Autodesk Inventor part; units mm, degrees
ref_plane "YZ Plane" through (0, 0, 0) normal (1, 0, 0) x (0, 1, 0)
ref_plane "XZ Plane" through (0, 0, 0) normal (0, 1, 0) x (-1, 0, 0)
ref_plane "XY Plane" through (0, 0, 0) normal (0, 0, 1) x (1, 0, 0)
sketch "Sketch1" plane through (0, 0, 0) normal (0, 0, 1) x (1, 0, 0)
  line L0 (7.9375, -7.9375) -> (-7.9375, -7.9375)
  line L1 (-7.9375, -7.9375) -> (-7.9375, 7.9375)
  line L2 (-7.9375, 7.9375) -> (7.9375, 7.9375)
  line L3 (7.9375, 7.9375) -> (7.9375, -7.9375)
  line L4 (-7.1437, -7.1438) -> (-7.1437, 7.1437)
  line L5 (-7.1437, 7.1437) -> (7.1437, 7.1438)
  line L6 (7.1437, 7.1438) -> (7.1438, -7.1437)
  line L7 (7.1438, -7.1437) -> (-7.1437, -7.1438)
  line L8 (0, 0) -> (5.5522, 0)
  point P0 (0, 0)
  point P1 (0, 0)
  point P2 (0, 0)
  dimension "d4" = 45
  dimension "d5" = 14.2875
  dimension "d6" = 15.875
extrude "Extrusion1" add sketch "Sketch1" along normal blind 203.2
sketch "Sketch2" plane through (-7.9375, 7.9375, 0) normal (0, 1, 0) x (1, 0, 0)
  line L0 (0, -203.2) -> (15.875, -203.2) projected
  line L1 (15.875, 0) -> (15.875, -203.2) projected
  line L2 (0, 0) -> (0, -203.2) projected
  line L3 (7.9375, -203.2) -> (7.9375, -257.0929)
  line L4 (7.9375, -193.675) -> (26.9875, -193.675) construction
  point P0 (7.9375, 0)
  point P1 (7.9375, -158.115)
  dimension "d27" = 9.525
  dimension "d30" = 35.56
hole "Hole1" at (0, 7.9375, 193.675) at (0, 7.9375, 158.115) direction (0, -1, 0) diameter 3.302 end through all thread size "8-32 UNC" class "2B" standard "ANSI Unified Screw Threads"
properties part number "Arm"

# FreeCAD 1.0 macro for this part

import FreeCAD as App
import Part
import Sketcher
Q = App.Units.Quantity

doc = App.newDocument("Part")
body = doc.addObject("PartDesign::Body", "Body")

sketch1 = body.newObject("Sketcher::SketchObject", "Sketch")
sketch1.AttachmentSupport = (doc.getObject("XY_Plane"), [""])
sketch1.MapMode = "FlatFace"
sketch1.addGeometry(Part.LineSegment(App.Vector(-7.9375, -7.9375, 0), App.Vector(7.9375, -7.9375, 0)), False)
sketch1.addGeometry(Part.LineSegment(App.Vector(7.9375, -7.9375, 0), App.Vector(7.9375, 7.9375, 0)), False)
sketch1.addGeometry(Part.LineSegment(App.Vector(7.9375, 7.9375, 0), App.Vector(-7.9375, 7.9375, 0)), False)
sketch1.addGeometry(Part.LineSegment(App.Vector(-7.9375, 7.9375, 0), App.Vector(-7.9375, -7.9375, 0)), False)
sketch1.addGeometry(Part.LineSegment(App.Vector(7.1438, -7.1437, 0), App.Vector(-7.1437, -7.1438, 0)), False)
sketch1.addGeometry(Part.LineSegment(App.Vector(-7.1437, -7.1438, 0), App.Vector(-7.1437, 7.1437, 0)), False)
sketch1.addGeometry(Part.LineSegment(App.Vector(-7.1437, 7.1437, 0), App.Vector(7.1437, 7.1438, 0)), False)
sketch1.addGeometry(Part.LineSegment(App.Vector(7.1437, 7.1438, 0), App.Vector(7.1438, -7.1437, 0)), False)
sketch1.addConstraint(Sketcher.Constraint("Coincident", 0, 2, 1, 1))
sketch1.addConstraint(Sketcher.Constraint("Coincident", 1, 2, 2, 1))
sketch1.addConstraint(Sketcher.Constraint("Coincident", 2, 2, 3, 1))
sketch1.addConstraint(Sketcher.Constraint("Coincident", 3, 2, 0, 1))
sketch1.addConstraint(Sketcher.Constraint("Coincident", 4, 2, 5, 1))
sketch1.addConstraint(Sketcher.Constraint("Coincident", 5, 2, 6, 1))
sketch1.addConstraint(Sketcher.Constraint("Coincident", 6, 2, 7, 1))
sketch1.addConstraint(Sketcher.Constraint("Coincident", 7, 2, 4, 1))
sketch1.addConstraint(Sketcher.Constraint("Horizontal", 0))
sketch1.addConstraint(Sketcher.Constraint("Vertical", 1))
sketch1.addConstraint(Sketcher.Constraint("Horizontal", 2))
sketch1.addConstraint(Sketcher.Constraint("Vertical", 3))
sketch1.addConstraint(Sketcher.Constraint("Horizontal", 4))
sketch1.addConstraint(Sketcher.Constraint("Vertical", 5))
sketch1.addConstraint(Sketcher.Constraint("Horizontal", 6))
sketch1.addConstraint(Sketcher.Constraint("Vertical", 7))
sketch1.addConstraint(Sketcher.Constraint("Symmetric", 0, 2, 2, 2, -1, 1))
sketch1.addConstraint(Sketcher.Constraint("Symmetric", 4, 2, 6, 2, -1, 1))
sketch1.addConstraint(Sketcher.Constraint("Equal", 2, 1))
sketch1.addConstraint(Sketcher.Constraint("Equal", 6, 5))
sketch1.addConstraint(Sketcher.Constraint("DistanceX", 0, 1, 0, 2, Q("0.625 in")))
sketch1.addConstraint(Sketcher.Constraint("DistanceX", 4, 2, 4, 1, Q("0.5625 in")))
pad1 = body.newObject("PartDesign::Pad", "Pad")
pad1.Profile = sketch1
pad1.Length = Q("8 in")

sketch2 = body.newObject("Sketcher::SketchObject", "Sketch001")
sketch2.AttachmentSupport = (doc.getObject("XZ_Plane"), [""])
sketch2.MapMode = "FlatFace"
sketch2.AttachmentOffset = App.Placement(App.Vector(0, 0, -0.3125 * 25.4), App.Rotation())
sketch2.addGeometry(Part.Circle(App.Vector(0, 193.675, 0), App.Vector(0, 0, 1), 1.651), False)
sketch2.addGeometry(Part.Circle(App.Vector(0, 158.115, 0), App.Vector(0, 0, 1), 1.651), False)
sketch2.addConstraint(Sketcher.Constraint("Equal", 0, 1))
sketch2.addConstraint(Sketcher.Constraint("PointOnObject", 0, 3, -2))
sketch2.addConstraint(Sketcher.Constraint("PointOnObject", 1, 3, -2))
sketch2.addConstraint(Sketcher.Constraint("Diameter", 0, Q("0.13 in")))
sketch2.addConstraint(Sketcher.Constraint("DistanceY", 1, 3, 0, 3, Q("1.4 in")))
sketch2.addConstraint(Sketcher.Constraint("DistanceY", -1, 1, 0, 3, Q("7.625 in")))
doc.recompute()
hole = body.newObject("PartDesign::Hole", "Hole")
hole.Profile = sketch2
hole.ThreadType = "None"
hole.Diameter = Q("0.13 in")
hole.DepthType = "ThroughAll"
hole.Reversed = True

doc.recompute()
